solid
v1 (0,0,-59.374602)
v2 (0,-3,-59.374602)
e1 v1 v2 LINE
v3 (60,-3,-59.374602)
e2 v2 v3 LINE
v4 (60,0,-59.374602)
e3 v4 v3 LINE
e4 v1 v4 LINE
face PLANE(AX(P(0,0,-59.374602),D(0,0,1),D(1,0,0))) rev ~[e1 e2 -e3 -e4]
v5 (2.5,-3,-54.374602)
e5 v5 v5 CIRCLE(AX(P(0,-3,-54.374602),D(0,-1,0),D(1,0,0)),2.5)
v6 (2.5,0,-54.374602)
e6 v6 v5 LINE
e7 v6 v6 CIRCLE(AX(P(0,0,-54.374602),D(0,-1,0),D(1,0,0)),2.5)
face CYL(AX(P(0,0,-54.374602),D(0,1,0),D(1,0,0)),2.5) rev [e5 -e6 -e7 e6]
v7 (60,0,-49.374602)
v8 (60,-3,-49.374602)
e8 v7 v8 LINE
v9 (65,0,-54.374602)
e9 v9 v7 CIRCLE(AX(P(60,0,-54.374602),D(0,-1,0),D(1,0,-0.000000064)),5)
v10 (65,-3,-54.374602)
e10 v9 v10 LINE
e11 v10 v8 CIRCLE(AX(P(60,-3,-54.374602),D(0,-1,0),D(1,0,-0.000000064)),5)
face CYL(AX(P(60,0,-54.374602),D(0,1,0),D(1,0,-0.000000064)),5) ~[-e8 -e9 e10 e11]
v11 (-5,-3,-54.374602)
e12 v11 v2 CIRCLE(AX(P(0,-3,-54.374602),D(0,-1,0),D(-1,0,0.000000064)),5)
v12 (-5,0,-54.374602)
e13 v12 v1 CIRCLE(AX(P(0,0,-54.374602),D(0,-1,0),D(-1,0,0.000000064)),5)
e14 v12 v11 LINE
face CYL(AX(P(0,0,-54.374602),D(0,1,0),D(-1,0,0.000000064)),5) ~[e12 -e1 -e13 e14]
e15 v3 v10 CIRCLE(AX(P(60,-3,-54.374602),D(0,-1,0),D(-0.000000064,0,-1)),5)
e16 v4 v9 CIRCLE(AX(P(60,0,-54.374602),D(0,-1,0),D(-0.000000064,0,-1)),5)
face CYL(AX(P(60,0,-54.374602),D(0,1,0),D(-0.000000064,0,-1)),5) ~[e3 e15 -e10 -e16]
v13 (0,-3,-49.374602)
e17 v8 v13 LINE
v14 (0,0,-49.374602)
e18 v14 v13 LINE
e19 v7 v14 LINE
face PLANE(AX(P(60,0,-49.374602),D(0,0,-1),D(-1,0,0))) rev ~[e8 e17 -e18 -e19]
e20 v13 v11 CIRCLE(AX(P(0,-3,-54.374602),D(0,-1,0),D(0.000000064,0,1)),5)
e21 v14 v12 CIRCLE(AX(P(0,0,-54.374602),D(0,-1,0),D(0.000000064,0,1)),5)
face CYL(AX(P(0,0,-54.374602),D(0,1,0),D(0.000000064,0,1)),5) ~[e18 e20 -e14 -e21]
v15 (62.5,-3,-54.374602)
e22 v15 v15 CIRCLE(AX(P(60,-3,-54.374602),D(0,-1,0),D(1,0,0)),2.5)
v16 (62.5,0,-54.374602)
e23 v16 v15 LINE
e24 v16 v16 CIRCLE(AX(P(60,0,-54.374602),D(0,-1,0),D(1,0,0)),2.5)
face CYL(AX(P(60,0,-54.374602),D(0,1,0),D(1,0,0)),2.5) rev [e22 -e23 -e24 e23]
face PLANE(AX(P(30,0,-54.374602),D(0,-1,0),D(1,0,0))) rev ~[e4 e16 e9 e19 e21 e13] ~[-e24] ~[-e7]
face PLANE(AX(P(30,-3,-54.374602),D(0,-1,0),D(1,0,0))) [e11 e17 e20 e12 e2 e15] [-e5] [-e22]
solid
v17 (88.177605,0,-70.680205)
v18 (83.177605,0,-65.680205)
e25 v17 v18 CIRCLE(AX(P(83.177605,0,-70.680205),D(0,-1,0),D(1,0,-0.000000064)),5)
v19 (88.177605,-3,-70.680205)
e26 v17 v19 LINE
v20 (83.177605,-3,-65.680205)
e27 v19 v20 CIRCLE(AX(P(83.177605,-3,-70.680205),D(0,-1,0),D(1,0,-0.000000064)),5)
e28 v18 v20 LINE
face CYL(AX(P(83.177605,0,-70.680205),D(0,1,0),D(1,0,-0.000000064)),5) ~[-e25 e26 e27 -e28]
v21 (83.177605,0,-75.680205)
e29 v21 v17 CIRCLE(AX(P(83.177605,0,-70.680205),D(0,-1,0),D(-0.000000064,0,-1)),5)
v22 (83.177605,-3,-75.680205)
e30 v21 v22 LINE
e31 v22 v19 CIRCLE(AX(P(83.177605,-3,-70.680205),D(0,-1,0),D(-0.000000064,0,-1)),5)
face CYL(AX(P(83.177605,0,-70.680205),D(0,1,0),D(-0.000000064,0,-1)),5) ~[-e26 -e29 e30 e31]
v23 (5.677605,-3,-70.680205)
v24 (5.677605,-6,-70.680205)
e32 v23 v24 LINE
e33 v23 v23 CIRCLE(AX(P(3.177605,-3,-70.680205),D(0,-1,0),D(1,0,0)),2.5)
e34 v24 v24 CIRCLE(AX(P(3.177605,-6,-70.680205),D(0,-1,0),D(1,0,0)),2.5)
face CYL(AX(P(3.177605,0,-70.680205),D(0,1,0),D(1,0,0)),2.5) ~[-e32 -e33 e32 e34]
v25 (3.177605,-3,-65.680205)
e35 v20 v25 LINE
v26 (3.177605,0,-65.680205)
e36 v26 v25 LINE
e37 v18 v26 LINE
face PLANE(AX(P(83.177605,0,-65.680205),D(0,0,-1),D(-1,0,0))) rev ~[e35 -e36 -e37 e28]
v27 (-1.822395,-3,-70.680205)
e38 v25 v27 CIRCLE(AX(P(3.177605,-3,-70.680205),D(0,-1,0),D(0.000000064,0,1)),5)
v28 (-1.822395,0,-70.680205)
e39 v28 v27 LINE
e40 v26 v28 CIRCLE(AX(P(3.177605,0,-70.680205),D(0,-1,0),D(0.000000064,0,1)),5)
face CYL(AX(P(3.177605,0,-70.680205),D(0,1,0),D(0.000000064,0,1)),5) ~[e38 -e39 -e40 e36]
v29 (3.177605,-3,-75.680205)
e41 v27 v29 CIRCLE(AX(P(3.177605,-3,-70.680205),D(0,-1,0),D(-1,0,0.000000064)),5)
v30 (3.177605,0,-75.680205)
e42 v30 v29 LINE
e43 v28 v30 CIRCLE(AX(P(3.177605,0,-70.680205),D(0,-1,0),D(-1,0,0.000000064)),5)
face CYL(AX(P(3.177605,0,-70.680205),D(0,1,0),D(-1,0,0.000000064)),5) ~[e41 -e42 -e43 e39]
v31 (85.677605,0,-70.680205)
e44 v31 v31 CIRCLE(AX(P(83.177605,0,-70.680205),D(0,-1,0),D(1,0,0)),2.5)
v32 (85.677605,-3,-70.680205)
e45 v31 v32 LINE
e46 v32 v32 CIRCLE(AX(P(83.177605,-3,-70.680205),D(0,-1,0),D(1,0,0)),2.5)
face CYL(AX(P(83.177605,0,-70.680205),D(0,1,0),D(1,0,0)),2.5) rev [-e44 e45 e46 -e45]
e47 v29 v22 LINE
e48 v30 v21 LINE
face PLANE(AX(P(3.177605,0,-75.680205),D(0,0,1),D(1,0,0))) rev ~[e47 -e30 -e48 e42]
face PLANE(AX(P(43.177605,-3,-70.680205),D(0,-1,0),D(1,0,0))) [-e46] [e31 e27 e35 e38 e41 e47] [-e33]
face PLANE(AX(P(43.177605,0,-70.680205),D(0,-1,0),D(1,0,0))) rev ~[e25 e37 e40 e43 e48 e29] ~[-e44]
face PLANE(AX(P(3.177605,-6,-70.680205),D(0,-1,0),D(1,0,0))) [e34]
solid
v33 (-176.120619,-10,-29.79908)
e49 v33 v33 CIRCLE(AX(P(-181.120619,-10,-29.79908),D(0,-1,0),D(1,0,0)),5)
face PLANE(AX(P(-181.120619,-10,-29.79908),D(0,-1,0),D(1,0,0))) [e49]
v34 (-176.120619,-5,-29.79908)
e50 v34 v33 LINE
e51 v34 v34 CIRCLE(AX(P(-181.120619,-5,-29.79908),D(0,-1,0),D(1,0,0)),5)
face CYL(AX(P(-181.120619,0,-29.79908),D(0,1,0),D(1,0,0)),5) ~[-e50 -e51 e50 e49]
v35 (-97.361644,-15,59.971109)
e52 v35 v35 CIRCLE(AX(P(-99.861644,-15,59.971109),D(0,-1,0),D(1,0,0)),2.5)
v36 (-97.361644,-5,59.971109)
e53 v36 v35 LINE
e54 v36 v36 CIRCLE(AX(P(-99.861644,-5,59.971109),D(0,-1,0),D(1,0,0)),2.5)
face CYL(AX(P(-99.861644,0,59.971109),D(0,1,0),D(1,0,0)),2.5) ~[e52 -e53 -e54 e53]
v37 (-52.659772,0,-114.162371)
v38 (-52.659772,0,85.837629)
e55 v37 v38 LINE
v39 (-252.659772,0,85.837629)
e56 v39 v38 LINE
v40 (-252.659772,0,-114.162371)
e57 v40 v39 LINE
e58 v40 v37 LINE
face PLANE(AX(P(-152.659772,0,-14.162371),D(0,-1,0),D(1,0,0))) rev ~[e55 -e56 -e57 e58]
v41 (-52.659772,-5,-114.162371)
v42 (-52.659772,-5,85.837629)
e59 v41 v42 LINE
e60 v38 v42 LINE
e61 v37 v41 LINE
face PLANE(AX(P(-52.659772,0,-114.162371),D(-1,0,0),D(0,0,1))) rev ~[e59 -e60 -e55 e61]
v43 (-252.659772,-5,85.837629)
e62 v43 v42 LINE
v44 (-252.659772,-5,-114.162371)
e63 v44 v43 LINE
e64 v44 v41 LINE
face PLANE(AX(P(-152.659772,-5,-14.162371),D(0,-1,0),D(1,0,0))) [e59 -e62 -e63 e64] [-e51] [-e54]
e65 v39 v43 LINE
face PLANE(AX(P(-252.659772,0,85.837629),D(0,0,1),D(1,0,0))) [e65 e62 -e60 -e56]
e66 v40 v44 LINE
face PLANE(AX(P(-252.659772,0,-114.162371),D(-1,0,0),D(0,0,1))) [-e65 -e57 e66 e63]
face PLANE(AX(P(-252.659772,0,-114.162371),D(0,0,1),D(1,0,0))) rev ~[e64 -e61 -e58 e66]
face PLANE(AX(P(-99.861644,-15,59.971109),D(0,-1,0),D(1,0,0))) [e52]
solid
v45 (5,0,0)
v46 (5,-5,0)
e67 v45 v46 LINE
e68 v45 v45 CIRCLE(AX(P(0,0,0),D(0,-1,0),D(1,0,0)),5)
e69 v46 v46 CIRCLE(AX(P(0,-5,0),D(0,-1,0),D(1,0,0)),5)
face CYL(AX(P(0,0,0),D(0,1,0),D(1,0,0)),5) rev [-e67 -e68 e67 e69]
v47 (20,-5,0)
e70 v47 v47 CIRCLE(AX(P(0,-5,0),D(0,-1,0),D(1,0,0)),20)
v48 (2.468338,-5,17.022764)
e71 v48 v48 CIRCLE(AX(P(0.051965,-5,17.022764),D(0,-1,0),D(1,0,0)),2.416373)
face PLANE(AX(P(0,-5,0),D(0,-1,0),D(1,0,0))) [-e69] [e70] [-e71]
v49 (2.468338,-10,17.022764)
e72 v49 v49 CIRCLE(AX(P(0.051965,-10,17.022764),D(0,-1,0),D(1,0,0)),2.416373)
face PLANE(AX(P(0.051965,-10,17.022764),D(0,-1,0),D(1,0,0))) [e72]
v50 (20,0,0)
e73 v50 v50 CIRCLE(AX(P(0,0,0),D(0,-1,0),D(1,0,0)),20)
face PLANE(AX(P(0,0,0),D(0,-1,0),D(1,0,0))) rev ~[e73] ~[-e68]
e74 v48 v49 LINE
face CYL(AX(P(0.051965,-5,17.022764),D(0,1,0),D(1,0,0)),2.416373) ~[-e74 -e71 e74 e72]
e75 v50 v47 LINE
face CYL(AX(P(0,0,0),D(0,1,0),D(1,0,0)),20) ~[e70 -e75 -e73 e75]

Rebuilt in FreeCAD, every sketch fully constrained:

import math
import FreeCAD as App
import Part
import Sketcher
from FreeCAD import Vector
Q = App.Units.Quantity


def add_polygon(sketch, points):
    """Adds a closed chain of lines whose ends are joined by coincident constraints."""
    first, n = sketch.GeometryCount, len(points)
    for a, b in zip(points, points[1:] + points[:1]):
        sketch.addGeometry(Part.LineSegment(App.Vector(*a, 0), App.Vector(*b, 0)), False)
    for i in range(n):
        sketch.addConstraint(Sketcher.Constraint("Coincident", first + i, 2, first + (i + 1) % n, 1))

doc = App.newDocument("Part")
body = doc.addObject("PartDesign::Body", "Body")

# Sketch on XZ plane
sketch1 = doc.addObject("Sketcher::SketchObject", "Sketch")
body.addObject(sketch1)
sketch1.AttachmentSupport = (doc.XZ_Plane, [""])
sketch1.MapMode = "FlatFace"
sketch1.addGeometry(Part.Circle(Vector(0, 0, 0), Vector(0, 0, 1), 20), False)
sketch1.addGeometry(Part.Circle(Vector(0, 0, 0), Vector(0, 0, 1), 5), False)
sketch1.addConstraint(Sketcher.Constraint("Coincident", 0, 3, -1, 1))
sketch1.addConstraint(Sketcher.Constraint("Coincident", 1, 3, -1, 1))
sketch1.addConstraint(Sketcher.Constraint("Diameter", 0, Q("40 mm")))
sketch1.addConstraint(Sketcher.Constraint("Diameter", 1, Q("10 mm")))
pad1 = doc.addObject("PartDesign::Pad", "Pad")
body.addObject(pad1)
pad1.Profile = sketch1
pad1.Length = 5

# Sketch on XZ plane
sketch2 = doc.addObject("Sketcher::SketchObject", "Sketch001")
body.addObject(sketch2)
sketch2.AttachmentSupport = (doc.XZ_Plane, [""])
sketch2.MapMode = "FlatFace"
sketch2.AttachmentOffset = App.Placement(Vector(0, 0, 5), App.Rotation())
sketch2.addGeometry(Part.Circle(Vector(0.051965, 17.022764, 0), Vector(0, 0, 1), 2.416373), False)
sketch2.addConstraint(Sketcher.Constraint("Diameter", 0, Q("4.832746 mm")))
sketch2.addConstraint(Sketcher.Constraint("DistanceX", -1, 1, 0, 3, Q("0.051965 mm")))
sketch2.addConstraint(Sketcher.Constraint("DistanceY", -1, 1, 0, 3, Q("17.022764 mm")))
pad2 = doc.addObject("PartDesign::Pad", "Pad001")
body.addObject(pad2)
pad2.Profile = sketch2
pad2.Length = 5
body2 = doc.addObject("PartDesign::Body", "Body001")

# Sketch on XZ plane
sketch3 = doc.addObject("Sketcher::SketchObject", "Sketch002")
body2.addObject(sketch3)
sketch3.AttachmentSupport = (doc.getObject("XZ_Plane001"), [""])
sketch3.MapMode = "FlatFace"
add_polygon(sketch3, [(-252.659772, 85.837629), (-252.659772, -114.162371), (-52.659772, -114.162371), (-52.659772, 85.837629)])  # lines 0-3
sketch3.addGeometry(Part.Circle(Vector(-181.120619, -29.79908, 0), Vector(0, 0, 1), 5), False)  # 4
sketch3.addGeometry(Part.Circle(Vector(-99.861644, 59.971109, 0), Vector(0, 0, 1), 2.5), False)  # 5
sketch3.addConstraint(Sketcher.Constraint("Vertical", 0))
sketch3.addConstraint(Sketcher.Constraint("Horizontal", 1))
sketch3.addConstraint(Sketcher.Constraint("Vertical", 2))
sketch3.addConstraint(Sketcher.Constraint("Horizontal", 3))
sketch3.addConstraint(Sketcher.Constraint("Equal", 3, 0))
sketch3.addConstraint(Sketcher.Constraint("Diameter", 4, Q("10 mm")))
sketch3.addConstraint(Sketcher.Constraint("Diameter", 5, Q("5 mm")))
sketch3.addConstraint(Sketcher.Constraint("DistanceX", 1, 1, 1, 2, Q("200 mm")))
sketch3.addConstraint(Sketcher.Constraint("DistanceX", 4, 3, -1, 1, Q("181.120619 mm")))
sketch3.addConstraint(Sketcher.Constraint("DistanceY", 4, 3, -1, 1, Q("29.79908 mm")))
sketch3.addConstraint(Sketcher.Constraint("DistanceY", -1, 1, 5, 3, Q("59.971109 mm")))
sketch3.addConstraint(Sketcher.Constraint("DistanceX", 0, 2, -1, 1, Q("252.659772 mm")))
sketch3.addConstraint(Sketcher.Constraint("DistanceY", 0, 2, -1, 1, Q("114.162371 mm")))
sketch3.addConstraint(Sketcher.Constraint("DistanceX", 0, 2, 5, 3, Q("152.798128 mm")))
pad3 = doc.addObject("PartDesign::Pad", "Pad002")
body2.addObject(pad3)
pad3.Profile = sketch3
pad3.Length = 5

# Sketch on XZ plane
sketch4 = doc.addObject("Sketcher::SketchObject", "Sketch003")
body2.addObject(sketch4)
sketch4.AttachmentSupport = (doc.getObject("XZ_Plane001"), [""])
sketch4.MapMode = "FlatFace"
sketch4.addGeometry(Part.Circle(Vector(-181.120619, -29.79908, 0), Vector(0, 0, 1), 5), False)
sketch4.addConstraint(Sketcher.Constraint("Diameter", 0, Q("10 mm")))
sketch4.addConstraint(Sketcher.Constraint("DistanceX", 0, 3, -1, 1, Q("181.120619 mm")))
sketch4.addConstraint(Sketcher.Constraint("DistanceY", 0, 3, -1, 1, Q("29.79908 mm")))
pad4 = doc.addObject("PartDesign::Pad", "Pad003")
body2.addObject(pad4)
pad4.Profile = sketch4
pad4.Length = 10

# Sketch on XZ plane
sketch5 = doc.addObject("Sketcher::SketchObject", "Sketch004")
body2.addObject(sketch5)
sketch5.AttachmentSupport = (doc.getObject("XZ_Plane001"), [""])
sketch5.MapMode = "FlatFace"
sketch5.addGeometry(Part.Circle(Vector(-99.861644, 59.971109, 0), Vector(0, 0, 1), 2.5), False)
sketch5.addConstraint(Sketcher.Constraint("Diameter", 0, Q("5 mm")))
sketch5.addConstraint(Sketcher.Constraint("DistanceY", -1, 1, 0, 3, Q("59.971109 mm")))
sketch5.addConstraint(Sketcher.Constraint("DistanceX", 0, 3, -1, 1, Q("99.861644 mm")))
pad5 = doc.addObject("PartDesign::Pad", "Pad004")
body2.addObject(pad5)
pad5.Profile = sketch5
pad5.Length = 15
body3 = doc.addObject("PartDesign::Body", "Body002")

# Sketch on XZ plane
sketch6 = doc.addObject("Sketcher::SketchObject", "Sketch005")
body3.addObject(sketch6)
sketch6.AttachmentSupport = (doc.getObject("XZ_Plane002"), [""])
sketch6.MapMode = "FlatFace"
sketch6.addGeometry(Part.LineSegment(Vector(60, -49.374602, 0), Vector(0, -49.374602, 0)), False)
sketch6.addGeometry(Part.ArcOfCircle(Part.Circle(Vector(0, -54.374602, 0), Vector(0, 0, 1), 5), math.radians(89.999996), math.radians(180.000004)), False)
sketch6.addGeometry(Part.ArcOfCircle(Part.Circle(Vector(0, -54.374602, 0), Vector(0, 0, 1), 5), math.radians(179.999996), math.radians(270.000004)), False)
sketch6.addGeometry(Part.LineSegment(Vector(0, -59.374602, 0), Vector(60, -59.374602, 0)), False)
sketch6.addGeometry(Part.ArcOfCircle(Part.Circle(Vector(60, -54.374602, 0), Vector(0, 0, 1), 5), math.radians(-90.000004), math.radians(0.000004)), False)
sketch6.addGeometry(Part.ArcOfCircle(Part.Circle(Vector(60, -54.374602, 0), Vector(0, 0, 1), 5), math.radians(-0.000004), math.radians(90.000004)), False)
sketch6.addGeometry(Part.Circle(Vector(0, -54.374602, 0), Vector(0, 0, 1), 2.5), False)
sketch6.addGeometry(Part.Circle(Vector(60, -54.374602, 0), Vector(0, 0, 1), 2.5), False)
sketch6.addConstraint(Sketcher.Constraint("Tangent", 0, 2, 1, 1))
sketch6.addConstraint(Sketcher.Constraint("Tangent", 1, 2, 2, 1))
sketch6.addConstraint(Sketcher.Constraint("Tangent", 2, 2, 3, 1))
sketch6.addConstraint(Sketcher.Constraint("Tangent", 3, 2, 4, 1))
sketch6.addConstraint(Sketcher.Constraint("Tangent", 4, 2, 5, 1))
sketch6.addConstraint(Sketcher.Constraint("Tangent", 5, 2, 0, 1))
sketch6.addConstraint(Sketcher.Constraint("Horizontal", 0))
sketch6.addConstraint(Sketcher.Constraint("Horizontal", 3))
sketch6.addConstraint(Sketcher.Constraint("Coincident", 6, 3, 1, 3))
sketch6.addConstraint(Sketcher.Constraint("Coincident", 7, 3, 4, 3))
sketch6.addConstraint(Sketcher.Constraint("Equal", 1, 2))
sketch6.addConstraint(Sketcher.Constraint("Equal", 2, 4))
sketch6.addConstraint(Sketcher.Constraint("Equal", 6, 7))
sketch6.addConstraint(Sketcher.Constraint("PointOnObject", 1, 3, -2))
sketch6.addConstraint(Sketcher.Constraint("Horizontal", 7, 3, 1, 2))
sketch6.addConstraint(Sketcher.Constraint("Horizontal", 1, 2, 4, 2))
sketch6.addConstraint(Sketcher.Constraint("Diameter", 6, Q("5 mm")))
sketch6.addConstraint(Sketcher.Constraint("Radius", 1, Q("5 mm")))
sketch6.addConstraint(Sketcher.Constraint("DistanceX", 0, 2, 0, 1, Q("60 mm")))
sketch6.addConstraint(Sketcher.Constraint("DistanceY", 1, 3, -1, 1, Q("54.374602 mm")))
pad6 = doc.addObject("PartDesign::Pad", "Pad005")
body3.addObject(pad6)
pad6.Profile = sketch6
pad6.Length = 3
body4 = doc.addObject("PartDesign::Body", "Body003")

# Sketch on XZ plane
sketch7 = doc.addObject("Sketcher::SketchObject", "Sketch006")
body4.addObject(sketch7)
sketch7.AttachmentSupport = (doc.getObject("XZ_Plane003"), [""])
sketch7.MapMode = "FlatFace"
sketch7.addGeometry(Part.LineSegment(Vector(83.177605, -65.680205, 0), Vector(3.177605, -65.680205, 0)), False)
sketch7.addGeometry(Part.ArcOfCircle(Part.Circle(Vector(3.177605, -70.680205, 0), Vector(0, 0, 1), 5), math.radians(89.999996), math.radians(180.000004)), False)
sketch7.addGeometry(Part.ArcOfCircle(Part.Circle(Vector(3.177605, -70.680205, 0), Vector(0, 0, 1), 5), math.radians(179.999996), math.radians(270.000004)), False)
sketch7.addGeometry(Part.LineSegment(Vector(3.177605, -75.680205, 0), Vector(83.177605, -75.680205, 0)), False)
sketch7.addGeometry(Part.ArcOfCircle(Part.Circle(Vector(83.177605, -70.680205, 0), Vector(0, 0, 1), 5), math.radians(-90.000004), math.radians(0.000004)), False)
sketch7.addGeometry(Part.ArcOfCircle(Part.Circle(Vector(83.177605, -70.680205, 0), Vector(0, 0, 1), 5), math.radians(-0.000004), math.radians(90.000004)), False)
sketch7.addGeometry(Part.Circle(Vector(3.177605, -70.680205, 0), Vector(0, 0, 1), 2.5), False)
sketch7.addGeometry(Part.Circle(Vector(83.177605, -70.680205, 0), Vector(0, 0, 1), 2.5), False)
sketch7.addConstraint(Sketcher.Constraint("Tangent", 0, 2, 1, 1))
sketch7.addConstraint(Sketcher.Constraint("Tangent", 1, 2, 2, 1))
sketch7.addConstraint(Sketcher.Constraint("Tangent", 2, 2, 3, 1))
sketch7.addConstraint(Sketcher.Constraint("Tangent", 3, 2, 4, 1))
sketch7.addConstraint(Sketcher.Constraint("Tangent", 4, 2, 5, 1))
sketch7.addConstraint(Sketcher.Constraint("Tangent", 5, 2, 0, 1))
sketch7.addConstraint(Sketcher.Constraint("Horizontal", 0))
sketch7.addConstraint(Sketcher.Constraint("Horizontal", 3))
sketch7.addConstraint(Sketcher.Constraint("Coincident", 6, 3, 1, 3))
sketch7.addConstraint(Sketcher.Constraint("Coincident", 7, 3, 4, 3))
sketch7.addConstraint(Sketcher.Constraint("Equal", 1, 2))
sketch7.addConstraint(Sketcher.Constraint("Equal", 2, 4))
sketch7.addConstraint(Sketcher.Constraint("Equal", 6, 7))
sketch7.addConstraint(Sketcher.Constraint("Horizontal", 7, 3, 1, 2))
sketch7.addConstraint(Sketcher.Constraint("Horizontal", 1, 2, 4, 2))
sketch7.addConstraint(Sketcher.Constraint("Diameter", 6, Q("5 mm")))
sketch7.addConstraint(Sketcher.Constraint("Radius", 1, Q("5 mm")))
sketch7.addConstraint(Sketcher.Constraint("DistanceX", 0, 2, 0, 1, Q("80 mm")))
sketch7.addConstraint(Sketcher.Constraint("DistanceX", -1, 1, 1, 3, Q("3.177605 mm")))
sketch7.addConstraint(Sketcher.Constraint("DistanceY", 1, 3, -1, 1, Q("70.680205 mm")))
pad7 = doc.addObject("PartDesign::Pad", "Pad006")
body4.addObject(pad7)
pad7.Profile = sketch7
pad7.Length = 3

# Sketch on XZ plane
sketch8 = doc.addObject("Sketcher::SketchObject", "Sketch007")
body4.addObject(sketch8)
sketch8.AttachmentSupport = (doc.getObject("XZ_Plane003"), [""])
sketch8.MapMode = "FlatFace"
sketch8.addGeometry(Part.Circle(Vector(3.177605, -70.680205, 0), Vector(0, 0, 1), 2.5), False)
sketch8.addConstraint(Sketcher.Constraint("Diameter", 0, Q("5 mm")))
sketch8.addConstraint(Sketcher.Constraint("DistanceX", -1, 1, 0, 3, Q("3.177605 mm")))
sketch8.addConstraint(Sketcher.Constraint("DistanceY", 0, 3, -1, 1, Q("70.680205 mm")))
pad8 = doc.addObject("PartDesign::Pad", "Pad007")
body4.addObject(pad8)
pad8.Profile = sketch8
pad8.Length = 6

doc.recompute()
